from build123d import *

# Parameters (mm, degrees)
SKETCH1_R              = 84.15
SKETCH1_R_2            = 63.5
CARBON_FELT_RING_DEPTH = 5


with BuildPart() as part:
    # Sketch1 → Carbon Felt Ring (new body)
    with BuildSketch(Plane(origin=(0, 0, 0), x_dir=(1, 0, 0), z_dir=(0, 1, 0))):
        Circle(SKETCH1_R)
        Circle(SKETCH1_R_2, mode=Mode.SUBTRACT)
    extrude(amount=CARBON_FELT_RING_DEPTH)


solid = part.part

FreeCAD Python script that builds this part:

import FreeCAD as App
import Part
import Sketcher

doc = App.newDocument("Part")
body = doc.addObject("PartDesign::Body", "Body")

sketch1 = body.newObject("Sketcher::SketchObject", "Sketch")
sketch1.AttachmentSupport = (doc.getObject("XZ_Plane"), [""])
sketch1.MapMode = "FlatFace"
sketch1.addGeometry([
    Part.Circle(App.Vector(0, 0, 0), App.Vector(0, 0, 1), 84.15),
    Part.Circle(App.Vector(0, 0, 0), App.Vector(0, 0, 1), 63.5),
], False)
sketch1.addConstraint([
    Sketcher.Constraint("Coincident", 0, 3, -1, 1),
    Sketcher.Constraint("Coincident", 1, 3, -1, 1),
    Sketcher.Constraint("Diameter", 1, 127.0),
    Sketcher.Constraint("Diameter", 0, 168.3),
])
pad1 = body.newObject("PartDesign::Pad", "Pad")
pad1.Profile = sketch1
pad1.Length = 5
pad1.Reversed = True

doc.recompute()
